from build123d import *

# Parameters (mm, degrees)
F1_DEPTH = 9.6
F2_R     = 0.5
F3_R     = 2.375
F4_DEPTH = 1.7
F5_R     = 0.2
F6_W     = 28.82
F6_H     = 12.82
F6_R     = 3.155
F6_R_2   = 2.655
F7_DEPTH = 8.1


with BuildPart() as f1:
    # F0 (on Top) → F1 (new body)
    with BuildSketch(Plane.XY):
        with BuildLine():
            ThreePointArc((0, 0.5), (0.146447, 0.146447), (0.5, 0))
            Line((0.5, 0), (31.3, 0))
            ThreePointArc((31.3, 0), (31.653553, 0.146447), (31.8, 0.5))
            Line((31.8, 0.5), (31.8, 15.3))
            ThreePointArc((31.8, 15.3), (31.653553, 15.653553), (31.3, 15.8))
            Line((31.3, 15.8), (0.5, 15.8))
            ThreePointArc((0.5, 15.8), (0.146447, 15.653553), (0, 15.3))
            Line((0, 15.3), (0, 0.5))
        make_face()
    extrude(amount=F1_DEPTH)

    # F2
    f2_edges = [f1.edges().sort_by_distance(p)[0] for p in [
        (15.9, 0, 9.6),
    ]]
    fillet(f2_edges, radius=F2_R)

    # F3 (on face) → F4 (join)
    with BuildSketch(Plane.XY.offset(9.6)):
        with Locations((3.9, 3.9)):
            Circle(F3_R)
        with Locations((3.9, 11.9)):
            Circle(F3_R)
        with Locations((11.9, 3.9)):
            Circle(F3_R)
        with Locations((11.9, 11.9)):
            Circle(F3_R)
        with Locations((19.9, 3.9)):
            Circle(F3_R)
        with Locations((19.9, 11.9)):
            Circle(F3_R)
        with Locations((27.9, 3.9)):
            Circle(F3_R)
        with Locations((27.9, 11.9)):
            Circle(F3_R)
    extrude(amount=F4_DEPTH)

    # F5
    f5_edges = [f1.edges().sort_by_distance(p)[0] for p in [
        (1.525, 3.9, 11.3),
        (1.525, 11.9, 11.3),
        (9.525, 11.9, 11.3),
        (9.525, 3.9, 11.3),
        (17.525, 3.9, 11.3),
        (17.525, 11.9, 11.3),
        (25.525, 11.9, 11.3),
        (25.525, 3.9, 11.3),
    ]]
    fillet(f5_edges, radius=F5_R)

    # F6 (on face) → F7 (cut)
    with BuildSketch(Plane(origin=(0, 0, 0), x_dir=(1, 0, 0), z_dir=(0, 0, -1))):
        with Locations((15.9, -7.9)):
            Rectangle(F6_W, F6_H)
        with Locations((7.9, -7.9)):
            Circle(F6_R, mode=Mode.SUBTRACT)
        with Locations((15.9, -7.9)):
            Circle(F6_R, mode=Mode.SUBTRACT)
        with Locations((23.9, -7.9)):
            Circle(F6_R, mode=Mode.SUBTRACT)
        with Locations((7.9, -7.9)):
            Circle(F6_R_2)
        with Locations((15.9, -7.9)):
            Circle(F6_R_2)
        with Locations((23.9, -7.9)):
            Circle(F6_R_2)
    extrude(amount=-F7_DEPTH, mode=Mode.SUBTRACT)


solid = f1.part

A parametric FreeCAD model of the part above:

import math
import FreeCAD as App
import Part
import Sketcher
Q = App.Units.Quantity


def edges_at(feature, points):
    """Names of the edges that pass closest to the given points."""
    edges = feature.Shape.Edges
    near = lambda p: min(range(len(edges)), key=lambda i: edges[i].distToShape(Part.Vertex(*p))[0])
    return sorted({f"Edge{near(p) + 1}" for p in points})


def add_polygon(sketch, points):
    """Adds a closed chain of lines whose ends are joined by coincident constraints."""
    first, n = sketch.GeometryCount, len(points)
    for a, b in zip(points, points[1:] + points[:1]):
        sketch.addGeometry(Part.LineSegment(App.Vector(*a, 0), App.Vector(*b, 0)), False)
    for i in range(n):
        sketch.addConstraint(Sketcher.Constraint("Coincident", first + i, 2, first + (i + 1) % n, 1))

doc = App.newDocument("Part")
body = doc.addObject("PartDesign::Body", "Body")

# Sketch on XY plane
sketch1 = body.newObject("Sketcher::SketchObject", "Sketch")
sketch1.AttachmentSupport = (doc.getObject("XY_Plane"), [""])
sketch1.MapMode = "FlatFace"
sketch1.addGeometry([
    Part.ArcOfCircle(Part.Circle(App.Vector(0.5, 0.5, 0), App.Vector(0, 0, 1), 0.5), math.radians(-180), math.radians(-90)),  # 0
    Part.LineSegment(App.Vector(0.5, 0, 0), App.Vector(31.3, 0, 0)),  # 1
    Part.ArcOfCircle(Part.Circle(App.Vector(31.3, 0.5, 0), App.Vector(0, 0, 1), 0.5), math.radians(-90), math.radians(0)),  # 2
    Part.LineSegment(App.Vector(31.8, 0.5, 0), App.Vector(31.8, 15.3, 0)),  # 3
    Part.ArcOfCircle(Part.Circle(App.Vector(31.3, 15.3, 0), App.Vector(0, 0, 1), 0.5), math.radians(0), math.radians(90)),  # 4
    Part.LineSegment(App.Vector(31.3, 15.8, 0), App.Vector(0.5, 15.8, 0)),  # 5
    Part.ArcOfCircle(Part.Circle(App.Vector(0.5, 15.3, 0), App.Vector(0, 0, 1), 0.5), math.radians(90), math.radians(180)),  # 6
    Part.LineSegment(App.Vector(0, 15.3, 0), App.Vector(0, 0.5, 0)),  # 7
], False)
sketch1.addConstraint([
    Sketcher.Constraint("Coincident", 0, 2, 1, 1),
    Sketcher.Constraint("Coincident", 1, 2, 2, 1),
    Sketcher.Constraint("Coincident", 2, 2, 3, 1),
    Sketcher.Constraint("Coincident", 3, 2, 4, 1),
    Sketcher.Constraint("Coincident", 4, 2, 5, 1),
    Sketcher.Constraint("Coincident", 5, 2, 6, 1),
    Sketcher.Constraint("Coincident", 6, 2, 7, 1),
    Sketcher.Constraint("Coincident", 7, 2, 0, 1),
    Sketcher.Constraint("Horizontal", 1),
    Sketcher.Constraint("Vertical", 3),
    Sketcher.Constraint("Horizontal", 5),
    Sketcher.Constraint("Vertical", 7),
    Sketcher.Constraint("Equal", 0, 2),
    Sketcher.Constraint("Equal", 2, 4),
    Sketcher.Constraint("Equal", 4, 6),
    Sketcher.Constraint("PointOnObject", 0, 2, -1),
    Sketcher.Constraint("PointOnObject", 6, 2, -2),
    Sketcher.Constraint("Horizontal", 0, 3, 2, 2),
    Sketcher.Constraint("Horizontal", 6, 3, 3, 2),
    Sketcher.Constraint("Horizontal", 3, 2, 6, 2),
    Sketcher.Constraint("Horizontal", 2, 2, 7, 2),
    Sketcher.Constraint("Vertical", 6, 3, 0, 2),
    Sketcher.Constraint("Vertical", 4, 3, 1, 2),
    Sketcher.Constraint("Vertical", 1, 2, 4, 2),
    Sketcher.Constraint("Vertical", 0, 2, 5, 2),
    Sketcher.Constraint("Radius", 0, Q("0.500001 mm")),
    Sketcher.Constraint("DistanceX", 1, 1, 1, 2, Q("30.8 mm")),
    Sketcher.Constraint("DistanceY", 3, 1, 3, 2, Q("14.8 mm")),
])
pad1 = body.newObject("PartDesign::Pad", "Pad")
pad1.Profile = sketch1
pad1.Length = 9.6
doc.recompute()

fillet = body.newObject("PartDesign::Fillet", "Fillet")
fillet.Base = (pad1, edges_at(pad1, [(15.9, 0, 9.6)]))
fillet.Radius = 0.5

# Sketch on XY plane
sketch2 = body.newObject("Sketcher::SketchObject", "Sketch001")
sketch2.AttachmentSupport = (doc.getObject("XY_Plane"), [""])
sketch2.MapMode = "FlatFace"
sketch2.AttachmentOffset = App.Placement(App.Vector(0, 0, 9.6), App.Rotation())
sketch2.addGeometry([
    Part.Circle(App.Vector(3.9, 3.9, 0), App.Vector(0, 0, 1), 2.4),  # 0
    Part.Circle(App.Vector(3.9, 11.9, 0), App.Vector(0, 0, 1), 2.4),  # 1
    Part.Circle(App.Vector(11.9, 3.9, 0), App.Vector(0, 0, 1), 2.4),  # 2
    Part.Circle(App.Vector(11.9, 11.9, 0), App.Vector(0, 0, 1), 2.4),  # 3
    Part.Circle(App.Vector(19.9, 3.9, 0), App.Vector(0, 0, 1), 2.4),  # 4
    Part.Circle(App.Vector(19.9, 11.9, 0), App.Vector(0, 0, 1), 2.4),  # 5
    Part.Circle(App.Vector(27.9, 3.9, 0), App.Vector(0, 0, 1), 2.4),  # 6
    Part.Circle(App.Vector(27.9, 11.9, 0), App.Vector(0, 0, 1), 2.4),  # 7
], False)
sketch2.addConstraint([
    Sketcher.Constraint("Equal", 0, 1),
    Sketcher.Constraint("Equal", 1, 2),
    Sketcher.Constraint("Equal", 2, 3),
    Sketcher.Constraint("Equal", 3, 4),
    Sketcher.Constraint("Equal", 4, 5),
    Sketcher.Constraint("Equal", 5, 6),
    Sketcher.Constraint("Equal", 6, 7),
    Sketcher.Constraint("Horizontal", 0, 3, 2, 3),
    Sketcher.Constraint("Horizontal", 1, 3, 3, 3),
    Sketcher.Constraint("Horizontal", 2, 3, 4, 3),
    Sketcher.Constraint("Horizontal", 3, 3, 5, 3),
    Sketcher.Constraint("Horizontal", 4, 3, 6, 3),
    Sketcher.Constraint("Horizontal", 5, 3, 7, 3),
    Sketcher.Constraint("Vertical", 0, 3, 1, 3),
    Sketcher.Constraint("Vertical", 2, 3, 3, 3),
    Sketcher.Constraint("Vertical", 4, 3, 5, 3),
    Sketcher.Constraint("Vertical", 6, 3, 7, 3),
    Sketcher.Constraint("Diameter", 0, Q("4.75 mm")),
    Sketcher.Constraint("DistanceY", 0, 3, 1, 3, Q("8 mm")),
    Sketcher.Constraint("DistanceX", 0, 3, 2, 3, Q("8 mm")),
    Sketcher.Constraint("DistanceX", 2, 3, 4, 3, Q("8 mm")),
    Sketcher.Constraint("DistanceX", 4, 3, 6, 3, Q("8 mm")),
    Sketcher.Constraint("DistanceX", -1, 1, 0, 3, Q("3.9 mm")),
    Sketcher.Constraint("DistanceY", -1, 1, 0, 3, Q("3.9 mm")),
])
pad2 = body.newObject("PartDesign::Pad", "Pad001")
pad2.Profile = sketch2
pad2.Length = 1.7
doc.recompute()

fillet2 = body.newObject("PartDesign::Fillet", "Fillet001")
fillet2.Base = (pad2, edges_at(pad2, [
    (1.525, 3.9, 11.3),
    (1.525, 11.9, 11.3),
    (9.525, 11.9, 11.3),
    (9.525, 3.9, 11.3),
    (17.525, 3.9, 11.3),
    (17.525, 11.9, 11.3),
    (25.525, 11.9, 11.3),
    (25.525, 3.9, 11.3),
]))
fillet2.Radius = 0.2

# Sketch on XY plane
sketch3 = body.newObject("Sketcher::SketchObject", "Sketch002")
sketch3.AttachmentSupport = (doc.getObject("XY_Plane"), [""])
sketch3.MapMode = "FlatFace"
add_polygon(sketch3, [(1.5, 1.5), (1.5, 14.3), (30.3, 14.3), (30.3, 1.5)])  # lines 0-3
sketch3.addGeometry(Part.Circle(App.Vector(7.9, 7.9, 0), App.Vector(0, 0, 1), 3.2), False)  # 4
sketch3.addGeometry(Part.Circle(App.Vector(15.9, 7.9, 0), App.Vector(0, 0, 1), 3.2), False)  # 5
sketch3.addGeometry(Part.Circle(App.Vector(23.9, 7.9, 0), App.Vector(0, 0, 1), 3.2), False)  # 6
sketch3.addGeometry(Part.Circle(App.Vector(7.9, 7.9, 0), App.Vector(0, 0, 1), 2.7), False)  # 7
sketch3.addGeometry(Part.Circle(App.Vector(15.9, 7.9, 0), App.Vector(0, 0, 1), 2.7), False)  # 8
sketch3.addGeometry(Part.Circle(App.Vector(23.9, 7.9, 0), App.Vector(0, 0, 1), 2.7), False)  # 9
sketch3.addConstraint([
    Sketcher.Constraint("Vertical", 0),
    Sketcher.Constraint("Horizontal", 1),
    Sketcher.Constraint("Vertical", 2),
    Sketcher.Constraint("Horizontal", 3),
    Sketcher.Constraint("Coincident", 7, 3, 4, 3),
    Sketcher.Constraint("Coincident", 8, 3, 5, 3),
    Sketcher.Constraint("Coincident", 9, 3, 6, 3),
    Sketcher.Constraint("Equal", 4, 5),
    Sketcher.Constraint("Equal", 5, 6),
    Sketcher.Constraint("Equal", 7, 8),
    Sketcher.Constraint("Equal", 8, 9),
    Sketcher.Constraint("Horizontal", 4, 3, 5, 3),
    Sketcher.Constraint("Horizontal", 5, 3, 6, 3),
    Sketcher.Constraint("Diameter", 4, Q("6.31 mm")),
    Sketcher.Constraint("Diameter", 7, Q("5.31 mm")),
    Sketcher.Constraint("DistanceX", 4, 3, 5, 3, Q("8 mm")),
    Sketcher.Constraint("DistanceX", 5, 3, 6, 3, Q("8 mm")),
    Sketcher.Constraint("DistanceX", 1, 1, 1, 2, Q("28.82 mm")),
    Sketcher.Constraint("DistanceY", 0, 1, 0, 2, Q("12.82 mm")),
    Sketcher.Constraint("DistanceX", -1, 1, 4, 3, Q("7.9 mm")),
    Sketcher.Constraint("DistanceY", -1, 1, 4, 3, Q("7.9 mm")),
    Sketcher.Constraint("DistanceX", -1, 1, 0, 2, Q("1.49 mm")),
    Sketcher.Constraint("DistanceY", -1, 1, 0, 2, Q("14.31 mm")),
])
pocket1 = body.newObject("PartDesign::Pocket", "Pocket")
pocket1.Profile = sketch3
pocket1.Length = 8.1
pocket1.Reversed = True

doc.recompute()
